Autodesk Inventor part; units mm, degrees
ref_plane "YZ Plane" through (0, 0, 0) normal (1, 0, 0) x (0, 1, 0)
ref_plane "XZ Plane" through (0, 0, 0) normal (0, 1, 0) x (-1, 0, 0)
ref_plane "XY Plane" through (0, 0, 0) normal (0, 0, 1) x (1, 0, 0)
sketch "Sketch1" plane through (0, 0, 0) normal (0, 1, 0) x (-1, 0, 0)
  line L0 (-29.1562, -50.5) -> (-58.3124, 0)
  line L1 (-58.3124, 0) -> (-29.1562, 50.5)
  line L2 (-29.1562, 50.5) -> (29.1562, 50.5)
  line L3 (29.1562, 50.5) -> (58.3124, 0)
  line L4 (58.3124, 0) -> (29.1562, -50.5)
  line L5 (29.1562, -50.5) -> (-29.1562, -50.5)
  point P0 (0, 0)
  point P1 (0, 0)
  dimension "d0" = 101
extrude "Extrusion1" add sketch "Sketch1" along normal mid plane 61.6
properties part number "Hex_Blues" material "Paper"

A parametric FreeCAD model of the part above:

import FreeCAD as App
import Part
import Sketcher
Q = App.Units.Quantity


def add_polygon(sketch, points):
    """Adds a closed chain of lines whose ends are joined by coincident constraints."""
    first, n = sketch.GeometryCount, len(points)
    for a, b in zip(points, points[1:] + points[:1]):
        sketch.addGeometry(Part.LineSegment(App.Vector(*a, 0), App.Vector(*b, 0)), False)
    for i in range(n):
        sketch.addConstraint(Sketcher.Constraint("Coincident", first + i, 2, first + (i + 1) % n, 1))

doc = App.newDocument("Part")
body = doc.addObject("PartDesign::Body", "Body")

# Sketch on XZ plane
sketch1 = doc.addObject("Sketcher::SketchObject", "Sketch")
body.addObject(sketch1)
sketch1.AttachmentSupport = (doc.XZ_Plane, [""])
sketch1.MapMode = "FlatFace"
add_polygon(sketch1, [(58, 0), (29, -50), (-29, -50), (-58, 0), (-29, 50), (29, 50)])  # lines 0-5
sketch1.addConstraint([
    Sketcher.Constraint("Horizontal", 1),
    Sketcher.Constraint("Horizontal", 4),
    Sketcher.Constraint("Symmetric", 0, 2, 3, 2, -1, 1),
    Sketcher.Constraint("Symmetric", 2, 2, 5, 2, -1, 1),
    Sketcher.Constraint("PointOnObject", 2, 2, -1),
    Sketcher.Constraint("Parallel", 2, 5),
    Sketcher.Constraint("Vertical", 1, 2, 3, 2),
    Sketcher.Constraint("DistanceY", 1, 2, 3, 2, Q("101 mm")),
    Sketcher.Constraint("Angle", 0, Q("-120 deg")),
    Sketcher.Constraint("DistanceX", 1, 2, 1, 1, Q("58.3124 mm")),
])
pad1 = doc.addObject("PartDesign::Pad", "Pad")
body.addObject(pad1)
pad1.Profile = sketch1
pad1.Length = 61.6
pad1.Midplane = True

doc.recompute()
